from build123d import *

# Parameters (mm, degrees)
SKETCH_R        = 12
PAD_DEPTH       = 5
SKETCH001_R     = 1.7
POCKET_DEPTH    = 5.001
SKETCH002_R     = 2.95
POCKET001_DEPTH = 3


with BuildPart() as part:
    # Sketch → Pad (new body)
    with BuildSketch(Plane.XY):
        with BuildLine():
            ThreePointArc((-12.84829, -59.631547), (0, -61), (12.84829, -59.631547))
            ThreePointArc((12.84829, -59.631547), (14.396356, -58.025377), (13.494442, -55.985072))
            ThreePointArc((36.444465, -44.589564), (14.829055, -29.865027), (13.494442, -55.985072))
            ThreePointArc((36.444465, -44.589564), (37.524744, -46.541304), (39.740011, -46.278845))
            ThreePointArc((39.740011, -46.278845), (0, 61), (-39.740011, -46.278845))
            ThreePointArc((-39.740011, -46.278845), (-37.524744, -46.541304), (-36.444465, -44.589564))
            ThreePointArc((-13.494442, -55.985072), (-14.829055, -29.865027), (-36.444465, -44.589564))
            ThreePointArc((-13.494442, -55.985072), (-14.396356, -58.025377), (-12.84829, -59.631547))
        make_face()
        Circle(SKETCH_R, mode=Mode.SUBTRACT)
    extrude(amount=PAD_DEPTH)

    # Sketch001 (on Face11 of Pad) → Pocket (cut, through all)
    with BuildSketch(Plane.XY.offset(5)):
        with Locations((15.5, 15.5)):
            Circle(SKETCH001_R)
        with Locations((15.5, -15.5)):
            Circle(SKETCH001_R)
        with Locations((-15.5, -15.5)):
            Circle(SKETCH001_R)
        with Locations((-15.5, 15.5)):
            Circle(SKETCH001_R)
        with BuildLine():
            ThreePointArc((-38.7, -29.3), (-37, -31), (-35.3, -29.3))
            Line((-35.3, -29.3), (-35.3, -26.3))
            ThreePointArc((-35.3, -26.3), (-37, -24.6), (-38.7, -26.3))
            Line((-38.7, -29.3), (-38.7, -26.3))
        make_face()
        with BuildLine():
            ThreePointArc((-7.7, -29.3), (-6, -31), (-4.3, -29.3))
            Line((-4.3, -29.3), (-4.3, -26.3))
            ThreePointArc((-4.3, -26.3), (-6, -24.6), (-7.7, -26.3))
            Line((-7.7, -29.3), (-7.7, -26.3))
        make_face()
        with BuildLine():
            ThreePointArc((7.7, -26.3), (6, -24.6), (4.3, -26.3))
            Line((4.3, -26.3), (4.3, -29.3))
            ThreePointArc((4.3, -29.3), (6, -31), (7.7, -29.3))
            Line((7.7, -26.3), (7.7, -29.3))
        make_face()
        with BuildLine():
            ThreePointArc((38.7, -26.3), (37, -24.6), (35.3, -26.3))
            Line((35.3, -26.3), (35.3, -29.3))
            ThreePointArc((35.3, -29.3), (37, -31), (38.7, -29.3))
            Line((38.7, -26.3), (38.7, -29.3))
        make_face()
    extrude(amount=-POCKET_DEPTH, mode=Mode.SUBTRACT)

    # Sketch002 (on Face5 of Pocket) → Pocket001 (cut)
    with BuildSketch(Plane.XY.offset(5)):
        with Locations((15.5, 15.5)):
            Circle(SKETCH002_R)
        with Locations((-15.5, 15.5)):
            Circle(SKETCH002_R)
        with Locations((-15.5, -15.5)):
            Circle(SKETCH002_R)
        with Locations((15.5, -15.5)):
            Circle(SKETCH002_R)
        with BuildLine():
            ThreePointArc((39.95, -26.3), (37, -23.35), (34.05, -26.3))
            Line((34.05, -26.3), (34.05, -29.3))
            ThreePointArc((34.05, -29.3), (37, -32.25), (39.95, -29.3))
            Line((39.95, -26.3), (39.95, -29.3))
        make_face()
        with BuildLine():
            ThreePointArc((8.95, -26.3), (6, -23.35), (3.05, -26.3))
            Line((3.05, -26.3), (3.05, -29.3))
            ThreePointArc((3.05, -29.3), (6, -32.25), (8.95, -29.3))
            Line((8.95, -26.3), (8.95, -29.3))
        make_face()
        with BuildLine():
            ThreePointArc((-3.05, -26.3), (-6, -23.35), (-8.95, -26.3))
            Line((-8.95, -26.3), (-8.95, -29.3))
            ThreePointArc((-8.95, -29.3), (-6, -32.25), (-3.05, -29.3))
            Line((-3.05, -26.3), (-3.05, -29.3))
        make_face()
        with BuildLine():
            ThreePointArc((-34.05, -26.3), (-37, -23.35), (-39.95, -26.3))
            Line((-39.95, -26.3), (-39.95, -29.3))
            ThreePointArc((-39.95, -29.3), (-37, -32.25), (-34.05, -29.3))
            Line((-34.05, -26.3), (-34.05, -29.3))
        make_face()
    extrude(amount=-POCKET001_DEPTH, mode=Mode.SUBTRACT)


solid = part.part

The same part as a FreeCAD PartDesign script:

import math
import FreeCAD as App
import Part
import Sketcher
from FreeCAD import Vector

doc = App.newDocument("Part")
params = doc.addObject("Spreadsheet::Sheet", "Params")
for row, (alias, value) in enumerate([
    ("sketch1_diameter", "24 mm"),
    ("sketch1_radius", "1.999999 mm"),
    ("sketch1_radius2", "15 mm"),
    ("sketch1_radius3", "61 mm"),
    ("pad1_length", "5 mm"),
    ("sketch2_diameter", "3.4 mm"),
    ("sketch2_height", "3 mm"),
    ("sketch3_diameter", "5.9 mm"),
    ("sketch3_height", "3 mm"),
    ("pocket2_length", "3 mm"),
], start=1):
    params.set(f"A{row}", alias)
    params.set(f"B{row}", "=" + value)
    params.setAlias(f"B{row}", alias)

body = doc.addObject("PartDesign::Body", "Body")

# Sketch on XY plane
sketch1 = doc.addObject("Sketcher::SketchObject", "Sketch")
body.addObject(sketch1)
sketch1.AttachmentSupport = (doc.XY_Plane, [""])
sketch1.MapMode = "FlatFace"
sketch1.addGeometry([
    Part.ArcOfCircle(Part.Circle(Vector(0, -0.000017, 0), Vector(0, 0, 1), 60.999983), math.radians(-102.159143), math.radians(-77.840857)),  # 0
    Part.ArcOfCircle(Part.Circle(Vector(12.427036, -57.676415, 0), Vector(0, 0, 1), 1.999999), math.radians(-77.840889), math.radians(57.743982)),  # 1
    Part.ArcOfCircle(Part.Circle(Vector(21.5, -43.3, 0), Vector(0, 0, 1), 15), math.radians(-4.931859), math.radians(237.743947)),  # 2
    Part.ArcOfCircle(Part.Circle(Vector(38.43706, -44.761507, 0), Vector(0, 0, 1), 1.999999), math.radians(175.068109), math.radians(310.652974)),  # 3
    Part.ArcOfCircle(Part.Circle(Vector(0, 0, 0), Vector(0, 0, 1), 61), math.radians(-49.347052), math.radians(229.347052)),  # 4
    Part.ArcOfCircle(Part.Circle(Vector(-38.43706, -44.761507, 0), Vector(0, 0, 1), 1.999999), math.radians(-130.652974), math.radians(4.931891)),  # 5
    Part.ArcOfCircle(Part.Circle(Vector(-21.5, -43.3, 0), Vector(0, 0, 1), 15), math.radians(-57.743947), math.radians(184.931859)),  # 6
    Part.ArcOfCircle(Part.Circle(Vector(-12.427036, -57.676415, 0), Vector(0, 0, 1), 1.999999), math.radians(122.256018), math.radians(257.840889)),  # 7
    Part.Circle(Vector(0, 0, 0), Vector(0, 0, 1), 12),  # 8
], False)
sketch1.addConstraint([
    Sketcher.Constraint("Tangent", 0, 2, 1, 1),
    Sketcher.Constraint("Tangent", 1, 2, 2, 2),
    Sketcher.Constraint("Tangent", 2, 1, 3, 1),
    Sketcher.Constraint("Tangent", 3, 2, 4, 1),
    Sketcher.Constraint("Tangent", 4, 2, 5, 1),
    Sketcher.Constraint("Tangent", 5, 2, 6, 2),
    Sketcher.Constraint("Tangent", 6, 1, 7, 1),
    Sketcher.Constraint("Tangent", 7, 2, 0, 1),
    Sketcher.Constraint("Coincident", 4, 3, -1, 1),
    Sketcher.Constraint("Coincident", 8, 3, -1, 1),
    Sketcher.Constraint("Equal", 1, 3),
    Sketcher.Constraint("Equal", 3, 5),
    Sketcher.Constraint("Equal", 2, 6),
    Sketcher.Constraint("Equal", 5, 7),
    Sketcher.Constraint("Symmetric", 2, 3, 6, 3, -2),
    Sketcher.Constraint("PointOnObject", 0, 3, -2),
    Sketcher.Constraint("Diameter", 8, 24.0),
    Sketcher.Constraint("Radius", 1, 1.999999),
    Sketcher.Constraint("Radius", 2, 15.0),
    Sketcher.Constraint("Radius", 4, 61.0),
    Sketcher.Constraint("DistanceX", 6, 3, 2, 3, 43.0),
    Sketcher.Constraint("DistanceY", 2, 3, -1, 1, 43.3),
    Sketcher.Constraint("Radius", 0, 60.999983),
    Sketcher.Constraint("DistanceX", 5, 2, 1, 3, 48.871501),
])
sketch1.setExpression("Constraints[16]", "Params.sketch1_diameter")
sketch1.setExpression("Constraints[17]", "Params.sketch1_radius")
sketch1.setExpression("Constraints[18]", "Params.sketch1_radius2")
sketch1.setExpression("Constraints[19]", "Params.sketch1_radius3")
pad1 = doc.addObject("PartDesign::Pad", "Pad")
body.addObject(pad1)
pad1.Profile = sketch1
pad1.setExpression("Length", "Params.pad1_length")

# Sketch on XY plane
sketch2 = doc.addObject("Sketcher::SketchObject", "Sketch001")
body.addObject(sketch2)
sketch2.AttachmentSupport = (doc.XY_Plane, [""])
sketch2.MapMode = "FlatFace"
sketch2.AttachmentOffset = App.Placement(Vector(0, 0, 5), App.Rotation())
sketch2.addGeometry([
    Part.Circle(Vector(15.5, 15.5, 0), Vector(0, 0, 1), 1.7),  # 0
    Part.Circle(Vector(15.5, -15.5, 0), Vector(0, 0, 1), 1.7),  # 1
    Part.Circle(Vector(-15.5, -15.5, 0), Vector(0, 0, 1), 1.7),  # 2
    Part.Circle(Vector(-15.5, 15.5, 0), Vector(0, 0, 1), 1.7),  # 3
    Part.ArcOfCircle(Part.Circle(Vector(-37, -29.3, 0), Vector(0, 0, 1), 1.7), math.radians(180), math.radians(360)),  # 4
    Part.LineSegment(Vector(-35.3, -29.3, 0), Vector(-35.3, -26.3, 0)),  # 5
    Part.ArcOfCircle(Part.Circle(Vector(-37, -26.3, 0), Vector(0, 0, 1), 1.7), math.radians(0), math.radians(180)),  # 6
    Part.LineSegment(Vector(-38.7, -26.3, 0), Vector(-38.7, -29.3, 0)),  # 7
    Part.ArcOfCircle(Part.Circle(Vector(-6, -29.3, 0), Vector(0, 0, 1), 1.7), math.radians(180), math.radians(360)),  # 8
    Part.LineSegment(Vector(-4.3, -29.3, 0), Vector(-4.3, -26.3, 0)),  # 9
    Part.ArcOfCircle(Part.Circle(Vector(-6, -26.3, 0), Vector(0, 0, 1), 1.7), math.radians(0), math.radians(180)),  # 10
    Part.LineSegment(Vector(-7.7, -26.3, 0), Vector(-7.7, -29.3, 0)),  # 11
    Part.ArcOfCircle(Part.Circle(Vector(6, -26.3, 0), Vector(0, 0, 1), 1.7), math.radians(0), math.radians(180)),  # 12
    Part.LineSegment(Vector(4.3, -26.3, 0), Vector(4.3, -29.3, 0)),  # 13
    Part.ArcOfCircle(Part.Circle(Vector(6, -29.3, 0), Vector(0, 0, 1), 1.7), math.radians(180), math.radians(360)),  # 14
    Part.LineSegment(Vector(7.7, -29.3, 0), Vector(7.7, -26.3, 0)),  # 15
    Part.ArcOfCircle(Part.Circle(Vector(37, -26.3, 0), Vector(0, 0, 1), 1.7), math.radians(0), math.radians(180)),  # 16
    Part.LineSegment(Vector(35.3, -26.3, 0), Vector(35.3, -29.3, 0)),  # 17
    Part.ArcOfCircle(Part.Circle(Vector(37, -29.3, 0), Vector(0, 0, 1), 1.7), math.radians(180), math.radians(360)),  # 18
    Part.LineSegment(Vector(38.7, -29.3, 0), Vector(38.7, -26.3, 0)),  # 19
], False)
sketch2.addConstraint([
    Sketcher.Constraint("Tangent", 4, 2, 5, 1),
    Sketcher.Constraint("Tangent", 5, 2, 6, 1),
    Sketcher.Constraint("Tangent", 6, 2, 7, 1),
    Sketcher.Constraint("Tangent", 7, 2, 4, 1),
    Sketcher.Constraint("Tangent", 8, 2, 9, 1),
    Sketcher.Constraint("Tangent", 9, 2, 10, 1),
    Sketcher.Constraint("Tangent", 10, 2, 11, 1),
    Sketcher.Constraint("Tangent", 11, 2, 8, 1),
    Sketcher.Constraint("Tangent", 12, 2, 13, 1),
    Sketcher.Constraint("Tangent", 13, 2, 14, 1),
    Sketcher.Constraint("Tangent", 14, 2, 15, 1),
    Sketcher.Constraint("Tangent", 15, 2, 12, 1),
    Sketcher.Constraint("Tangent", 16, 2, 17, 1),
    Sketcher.Constraint("Tangent", 17, 2, 18, 1),
    Sketcher.Constraint("Tangent", 18, 2, 19, 1),
    Sketcher.Constraint("Tangent", 19, 2, 16, 1),
    Sketcher.Constraint("Vertical", 5),
    Sketcher.Constraint("Vertical", 7),
    Sketcher.Constraint("Vertical", 9),
    Sketcher.Constraint("Vertical", 11),
    Sketcher.Constraint("Vertical", 13),
    Sketcher.Constraint("Vertical", 15),
    Sketcher.Constraint("Vertical", 17),
    Sketcher.Constraint("Vertical", 19),
    Sketcher.Constraint("Equal", 0, 1),
    Sketcher.Constraint("Equal", 1, 2),
    Sketcher.Constraint("Equal", 2, 3),
    Sketcher.Constraint("Equal", 3, 4),
    Sketcher.Constraint("Equal", 6, 8),
    Sketcher.Constraint("Equal", 10, 12),
    Sketcher.Constraint("Equal", 14, 16),
    Sketcher.Constraint("Symmetric", 0, 3, 2, 3, -1, 1),
    Sketcher.Constraint("Symmetric", 1, 3, 3, 3, -1, 1),
    Sketcher.Constraint("Symmetric", 1, 3, 2, 3, -2),
    Sketcher.Constraint("Symmetric", 10, 3, 12, 3, -2),
    Sketcher.Constraint("Symmetric", 6, 3, 16, 3, -2),
    Sketcher.Constraint("Horizontal", 4, 3, 8, 3),
    Sketcher.Constraint("Horizontal", 6, 3, 10, 3),
    Sketcher.Constraint("Horizontal", 8, 3, 14, 3),
    Sketcher.Constraint("Horizontal", 14, 3, 18, 3),
    Sketcher.Constraint("Diameter", 0, 3.4),
    Sketcher.Constraint("DistanceY", 5, 1, 5, 2, 3.0),
    Sketcher.Constraint("DistanceX", 4, 3, -1, 1, 37.0),
    Sketcher.Constraint("DistanceX", 8, 3, -1, 1, 6.0),
    Sketcher.Constraint("DistanceY", 1, 3, 0, 3, 31.0),
    Sketcher.Constraint("DistanceX", 2, 3, 1, 3, 31.0),
    Sketcher.Constraint("DistanceY", 4, 3, -1, 1, 29.3),
])
sketch2.setExpression("Constraints[40]", "Params.sketch2_diameter")
sketch2.setExpression("Constraints[41]", "Params.sketch2_height")
pocket1 = doc.addObject("PartDesign::Pocket", "Pocket")
body.addObject(pocket1)
pocket1.Profile = sketch2
pocket1.Type = "ThroughAll"

# Sketch on XY plane
sketch3 = doc.addObject("Sketcher::SketchObject", "Sketch002")
body.addObject(sketch3)
sketch3.AttachmentSupport = (doc.XY_Plane, [""])
sketch3.MapMode = "FlatFace"
sketch3.AttachmentOffset = App.Placement(Vector(0, 0, 5), App.Rotation())
sketch3.addGeometry([
    Part.Circle(Vector(15.5, 15.5, 0), Vector(0, 0, 1), 2.95),  # 0
    Part.Circle(Vector(-15.5, 15.5, 0), Vector(0, 0, 1), 2.95),  # 1
    Part.Circle(Vector(-15.5, -15.5, 0), Vector(0, 0, 1), 2.95),  # 2
    Part.Circle(Vector(15.5, -15.5, 0), Vector(0, 0, 1), 2.95),  # 3
    Part.ArcOfCircle(Part.Circle(Vector(37, -26.3, 0), Vector(0, 0, 1), 2.95), math.radians(0), math.radians(180)),  # 4
    Part.LineSegment(Vector(34.05, -26.3, 0), Vector(34.05, -29.3, 0)),  # 5
    Part.ArcOfCircle(Part.Circle(Vector(37, -29.3, 0), Vector(0, 0, 1), 2.95), math.radians(180), math.radians(360)),  # 6
    Part.LineSegment(Vector(39.95, -29.3, 0), Vector(39.95, -26.3, 0)),  # 7
    Part.ArcOfCircle(Part.Circle(Vector(6, -26.3, 0), Vector(0, 0, 1), 2.95), math.radians(0), math.radians(180)),  # 8
    Part.LineSegment(Vector(3.05, -26.3, 0), Vector(3.05, -29.3, 0)),  # 9
    Part.ArcOfCircle(Part.Circle(Vector(6, -29.3, 0), Vector(0, 0, 1), 2.95), math.radians(180), math.radians(360)),  # 10
    Part.LineSegment(Vector(8.95, -29.3, 0), Vector(8.95, -26.3, 0)),  # 11
    Part.ArcOfCircle(Part.Circle(Vector(-6, -26.3, 0), Vector(0, 0, 1), 2.95), math.radians(0), math.radians(180)),  # 12
    Part.LineSegment(Vector(-8.95, -26.3, 0), Vector(-8.95, -29.3, 0)),  # 13
    Part.ArcOfCircle(Part.Circle(Vector(-6, -29.3, 0), Vector(0, 0, 1), 2.95), math.radians(180), math.radians(360)),  # 14
    Part.LineSegment(Vector(-3.05, -29.3, 0), Vector(-3.05, -26.3, 0)),  # 15
    Part.ArcOfCircle(Part.Circle(Vector(-37, -26.3, 0), Vector(0, 0, 1), 2.95), math.radians(0), math.radians(180)),  # 16
    Part.LineSegment(Vector(-39.95, -26.3, 0), Vector(-39.95, -29.3, 0)),  # 17
    Part.ArcOfCircle(Part.Circle(Vector(-37, -29.3, 0), Vector(0, 0, 1), 2.95), math.radians(180), math.radians(360)),  # 18
    Part.LineSegment(Vector(-34.05, -29.3, 0), Vector(-34.05, -26.3, 0)),  # 19
], False)
sketch3.addConstraint([
    Sketcher.Constraint("Tangent", 4, 2, 5, 1),
    Sketcher.Constraint("Tangent", 5, 2, 6, 1),
    Sketcher.Constraint("Tangent", 6, 2, 7, 1),
    Sketcher.Constraint("Tangent", 7, 2, 4, 1),
    Sketcher.Constraint("Tangent", 8, 2, 9, 1),
    Sketcher.Constraint("Tangent", 9, 2, 10, 1),
    Sketcher.Constraint("Tangent", 10, 2, 11, 1),
    Sketcher.Constraint("Tangent", 11, 2, 8, 1),
    Sketcher.Constraint("Tangent", 12, 2, 13, 1),
    Sketcher.Constraint("Tangent", 13, 2, 14, 1),
    Sketcher.Constraint("Tangent", 14, 2, 15, 1),
    Sketcher.Constraint("Tangent", 15, 2, 12, 1),
    Sketcher.Constraint("Tangent", 16, 2, 17, 1),
    Sketcher.Constraint("Tangent", 17, 2, 18, 1),
    Sketcher.Constraint("Tangent", 18, 2, 19, 1),
    Sketcher.Constraint("Tangent", 19, 2, 16, 1),
    Sketcher.Constraint("Vertical", 5),
    Sketcher.Constraint("Vertical", 7),
    Sketcher.Constraint("Vertical", 9),
    Sketcher.Constraint("Vertical", 11),
    Sketcher.Constraint("Vertical", 13),
    Sketcher.Constraint("Vertical", 15),
    Sketcher.Constraint("Vertical", 17),
    Sketcher.Constraint("Vertical", 19),
    Sketcher.Constraint("Equal", 0, 1),
    Sketcher.Constraint("Equal", 1, 2),
    Sketcher.Constraint("Equal", 2, 3),
    Sketcher.Constraint("Equal", 3, 4),
    Sketcher.Constraint("Equal", 6, 8),
    Sketcher.Constraint("Equal", 10, 12),
    Sketcher.Constraint("Equal", 14, 16),
    Sketcher.Constraint("Symmetric", 0, 3, 2, 3, -1, 1),
    Sketcher.Constraint("Symmetric", 1, 3, 3, 3, -1, 1),
    Sketcher.Constraint("Symmetric", 0, 3, 1, 3, -2),
    Sketcher.Constraint("Symmetric", 8, 3, 12, 3, -2),
    Sketcher.Constraint("Symmetric", 4, 3, 16, 3, -2),
    Sketcher.Constraint("Horizontal", 4, 3, 8, 3),
    Sketcher.Constraint("Horizontal", 6, 3, 10, 3),
    Sketcher.Constraint("Horizontal", 10, 3, 14, 3),
    Sketcher.Constraint("Horizontal", 14, 3, 18, 3),
    Sketcher.Constraint("Diameter", 0, 5.9),
    Sketcher.Constraint("DistanceY", 5, 2, 5, 1, 3.0),
    Sketcher.Constraint("DistanceX", -1, 1, 4, 3, 37.0),
    Sketcher.Constraint("DistanceX", -1, 1, 8, 3, 6.0),
    Sketcher.Constraint("DistanceX", 1, 3, 0, 3, 31.0),
    Sketcher.Constraint("DistanceY", 2, 3, 1, 3, 31.0),
    Sketcher.Constraint("DistanceY", 4, 3, -1, 1, 26.3),
])
sketch3.setExpression("Constraints[40]", "Params.sketch3_diameter")
sketch3.setExpression("Constraints[41]", "Params.sketch3_height")
pocket2 = doc.addObject("PartDesign::Pocket", "Pocket001")
body.addObject(pocket2)
pocket2.Profile = sketch3
pocket2.setExpression("Length", "Params.pocket2_length")

doc.recompute()
